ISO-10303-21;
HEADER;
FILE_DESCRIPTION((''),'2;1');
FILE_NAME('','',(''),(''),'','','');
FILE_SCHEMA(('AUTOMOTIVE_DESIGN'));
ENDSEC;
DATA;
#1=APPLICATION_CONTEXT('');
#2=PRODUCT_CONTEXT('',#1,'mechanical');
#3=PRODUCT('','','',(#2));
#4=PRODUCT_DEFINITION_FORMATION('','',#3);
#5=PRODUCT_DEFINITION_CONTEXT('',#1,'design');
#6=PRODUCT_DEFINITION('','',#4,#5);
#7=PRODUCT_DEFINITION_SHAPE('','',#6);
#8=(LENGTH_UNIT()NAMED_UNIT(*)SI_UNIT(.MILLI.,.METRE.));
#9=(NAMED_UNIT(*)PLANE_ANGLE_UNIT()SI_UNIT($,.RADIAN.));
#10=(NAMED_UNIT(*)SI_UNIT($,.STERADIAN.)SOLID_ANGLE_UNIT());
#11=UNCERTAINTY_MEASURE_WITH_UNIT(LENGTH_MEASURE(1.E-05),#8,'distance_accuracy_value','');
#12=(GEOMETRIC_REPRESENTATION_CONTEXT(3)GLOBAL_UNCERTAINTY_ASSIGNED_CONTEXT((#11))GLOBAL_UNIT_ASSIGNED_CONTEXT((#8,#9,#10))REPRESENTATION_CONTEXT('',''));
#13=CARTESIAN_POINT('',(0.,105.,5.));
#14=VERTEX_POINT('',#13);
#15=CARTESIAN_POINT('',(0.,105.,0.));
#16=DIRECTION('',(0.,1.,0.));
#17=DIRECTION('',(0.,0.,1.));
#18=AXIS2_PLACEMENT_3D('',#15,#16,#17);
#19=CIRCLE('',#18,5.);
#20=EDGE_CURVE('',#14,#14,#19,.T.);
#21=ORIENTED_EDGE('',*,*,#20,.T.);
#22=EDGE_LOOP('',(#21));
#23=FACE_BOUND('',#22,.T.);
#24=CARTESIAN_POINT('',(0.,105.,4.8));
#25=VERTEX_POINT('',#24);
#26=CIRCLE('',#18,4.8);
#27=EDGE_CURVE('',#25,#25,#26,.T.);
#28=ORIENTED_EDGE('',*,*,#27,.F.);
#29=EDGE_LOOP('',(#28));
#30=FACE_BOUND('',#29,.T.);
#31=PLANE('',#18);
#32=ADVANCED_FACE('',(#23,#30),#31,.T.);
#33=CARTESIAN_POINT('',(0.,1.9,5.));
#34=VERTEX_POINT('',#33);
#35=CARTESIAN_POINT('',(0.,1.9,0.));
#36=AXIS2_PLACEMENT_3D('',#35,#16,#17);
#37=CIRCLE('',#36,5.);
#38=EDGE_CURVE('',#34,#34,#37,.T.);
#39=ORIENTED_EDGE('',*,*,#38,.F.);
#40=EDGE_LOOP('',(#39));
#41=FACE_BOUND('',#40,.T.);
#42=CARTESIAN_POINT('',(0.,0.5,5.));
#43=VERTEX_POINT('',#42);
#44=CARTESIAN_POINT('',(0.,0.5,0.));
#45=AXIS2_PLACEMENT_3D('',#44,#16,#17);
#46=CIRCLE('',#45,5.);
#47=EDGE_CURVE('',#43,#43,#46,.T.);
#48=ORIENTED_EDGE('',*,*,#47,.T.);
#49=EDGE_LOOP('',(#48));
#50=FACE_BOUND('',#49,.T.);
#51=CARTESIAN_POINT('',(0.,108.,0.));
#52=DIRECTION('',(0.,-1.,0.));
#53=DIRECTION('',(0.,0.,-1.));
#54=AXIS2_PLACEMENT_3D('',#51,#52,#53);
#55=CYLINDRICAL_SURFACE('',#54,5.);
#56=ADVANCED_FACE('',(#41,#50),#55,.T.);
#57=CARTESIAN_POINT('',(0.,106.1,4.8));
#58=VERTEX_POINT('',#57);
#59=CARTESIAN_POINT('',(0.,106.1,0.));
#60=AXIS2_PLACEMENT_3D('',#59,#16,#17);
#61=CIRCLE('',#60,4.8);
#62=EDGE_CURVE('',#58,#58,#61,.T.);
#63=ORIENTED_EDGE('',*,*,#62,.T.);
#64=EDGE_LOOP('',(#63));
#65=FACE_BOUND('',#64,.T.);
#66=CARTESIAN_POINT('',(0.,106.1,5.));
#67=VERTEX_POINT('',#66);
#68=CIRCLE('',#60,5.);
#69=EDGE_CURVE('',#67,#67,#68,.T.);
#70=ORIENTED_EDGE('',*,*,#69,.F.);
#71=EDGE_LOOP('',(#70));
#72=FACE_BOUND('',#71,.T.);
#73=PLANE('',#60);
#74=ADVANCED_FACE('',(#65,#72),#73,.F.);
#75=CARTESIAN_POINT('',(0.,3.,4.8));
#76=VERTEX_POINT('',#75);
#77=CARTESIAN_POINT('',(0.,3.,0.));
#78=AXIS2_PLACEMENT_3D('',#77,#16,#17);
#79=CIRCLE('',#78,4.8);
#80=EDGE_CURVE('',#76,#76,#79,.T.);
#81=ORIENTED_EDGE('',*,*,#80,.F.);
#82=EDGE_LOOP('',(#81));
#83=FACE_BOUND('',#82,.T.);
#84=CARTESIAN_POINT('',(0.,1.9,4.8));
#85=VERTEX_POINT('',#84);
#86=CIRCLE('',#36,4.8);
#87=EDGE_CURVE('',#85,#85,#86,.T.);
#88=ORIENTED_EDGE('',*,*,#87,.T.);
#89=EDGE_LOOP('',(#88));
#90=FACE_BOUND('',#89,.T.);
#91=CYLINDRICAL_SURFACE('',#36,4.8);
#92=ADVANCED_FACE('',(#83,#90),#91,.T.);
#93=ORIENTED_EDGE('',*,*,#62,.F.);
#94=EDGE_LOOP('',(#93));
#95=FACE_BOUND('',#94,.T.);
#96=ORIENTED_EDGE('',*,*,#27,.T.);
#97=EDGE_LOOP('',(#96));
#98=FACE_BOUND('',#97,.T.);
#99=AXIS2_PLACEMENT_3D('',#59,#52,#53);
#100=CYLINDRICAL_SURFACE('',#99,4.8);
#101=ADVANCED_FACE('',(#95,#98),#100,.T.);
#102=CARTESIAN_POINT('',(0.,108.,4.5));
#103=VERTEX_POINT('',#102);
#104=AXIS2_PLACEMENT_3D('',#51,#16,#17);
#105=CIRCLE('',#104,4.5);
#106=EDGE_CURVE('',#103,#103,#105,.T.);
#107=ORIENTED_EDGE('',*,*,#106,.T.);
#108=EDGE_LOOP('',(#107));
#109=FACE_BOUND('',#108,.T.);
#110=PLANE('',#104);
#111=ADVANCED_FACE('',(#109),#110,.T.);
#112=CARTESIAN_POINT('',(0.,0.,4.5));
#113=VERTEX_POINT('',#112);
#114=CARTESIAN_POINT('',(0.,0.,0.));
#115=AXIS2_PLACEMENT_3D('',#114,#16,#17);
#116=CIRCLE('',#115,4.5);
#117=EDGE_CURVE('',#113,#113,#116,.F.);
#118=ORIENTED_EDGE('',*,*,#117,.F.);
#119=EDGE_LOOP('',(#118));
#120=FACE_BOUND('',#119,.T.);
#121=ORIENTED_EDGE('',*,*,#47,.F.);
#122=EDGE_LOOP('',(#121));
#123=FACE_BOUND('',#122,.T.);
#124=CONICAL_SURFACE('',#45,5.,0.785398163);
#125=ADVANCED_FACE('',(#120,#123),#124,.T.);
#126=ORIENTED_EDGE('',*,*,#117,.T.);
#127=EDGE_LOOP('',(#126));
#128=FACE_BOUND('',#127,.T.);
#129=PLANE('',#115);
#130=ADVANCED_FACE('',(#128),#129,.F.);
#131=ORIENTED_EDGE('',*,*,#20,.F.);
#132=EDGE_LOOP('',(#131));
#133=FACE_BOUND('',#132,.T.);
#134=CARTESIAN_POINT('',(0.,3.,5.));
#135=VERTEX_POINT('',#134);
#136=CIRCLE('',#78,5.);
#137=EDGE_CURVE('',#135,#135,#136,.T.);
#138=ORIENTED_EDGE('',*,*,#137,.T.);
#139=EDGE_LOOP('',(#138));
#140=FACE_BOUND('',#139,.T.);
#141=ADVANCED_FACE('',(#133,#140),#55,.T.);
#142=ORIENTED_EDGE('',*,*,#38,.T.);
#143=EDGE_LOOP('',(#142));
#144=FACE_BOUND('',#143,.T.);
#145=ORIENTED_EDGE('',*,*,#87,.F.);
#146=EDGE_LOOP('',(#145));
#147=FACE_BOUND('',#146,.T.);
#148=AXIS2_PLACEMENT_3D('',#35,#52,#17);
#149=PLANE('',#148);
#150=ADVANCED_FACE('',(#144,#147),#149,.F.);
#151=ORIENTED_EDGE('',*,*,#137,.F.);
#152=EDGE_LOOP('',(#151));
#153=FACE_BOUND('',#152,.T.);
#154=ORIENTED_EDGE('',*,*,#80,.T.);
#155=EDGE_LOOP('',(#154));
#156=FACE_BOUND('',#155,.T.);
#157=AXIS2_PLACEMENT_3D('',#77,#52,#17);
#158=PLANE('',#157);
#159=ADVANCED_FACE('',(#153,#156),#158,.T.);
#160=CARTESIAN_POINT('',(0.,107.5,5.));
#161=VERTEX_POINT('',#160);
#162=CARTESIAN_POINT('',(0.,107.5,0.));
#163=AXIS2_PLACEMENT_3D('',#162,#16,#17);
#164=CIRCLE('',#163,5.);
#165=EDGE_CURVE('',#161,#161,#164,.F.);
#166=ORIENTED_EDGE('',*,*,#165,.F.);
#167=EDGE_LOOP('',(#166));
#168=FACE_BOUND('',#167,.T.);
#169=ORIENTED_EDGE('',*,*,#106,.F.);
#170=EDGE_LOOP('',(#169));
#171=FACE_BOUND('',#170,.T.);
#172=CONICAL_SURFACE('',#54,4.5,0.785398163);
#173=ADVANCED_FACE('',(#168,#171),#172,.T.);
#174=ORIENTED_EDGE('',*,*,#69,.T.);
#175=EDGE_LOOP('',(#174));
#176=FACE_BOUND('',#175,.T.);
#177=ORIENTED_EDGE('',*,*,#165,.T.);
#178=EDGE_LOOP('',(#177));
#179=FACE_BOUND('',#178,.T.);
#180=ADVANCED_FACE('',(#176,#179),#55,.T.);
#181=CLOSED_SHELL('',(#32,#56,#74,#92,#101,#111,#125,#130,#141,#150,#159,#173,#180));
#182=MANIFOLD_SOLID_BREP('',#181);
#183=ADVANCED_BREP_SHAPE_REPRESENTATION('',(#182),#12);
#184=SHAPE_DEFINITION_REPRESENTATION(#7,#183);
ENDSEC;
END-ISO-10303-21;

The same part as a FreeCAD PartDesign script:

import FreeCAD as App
import Part
import Sketcher
from FreeCAD import Vector


def edges_at(feature, points):
    """Names of the edges that pass closest to the given points."""
    edges = feature.Shape.Edges
    near = lambda p: min(range(len(edges)), key=lambda i: edges[i].distToShape(Part.Vertex(*p))[0])
    return sorted({f"Edge{near(p) + 1}" for p in points})

doc = App.newDocument("Part")
body = doc.addObject("PartDesign::Body", "Body")

sketch1 = body.newObject("Sketcher::SketchObject", "Sketch")
sketch1.AttachmentSupport = (doc.getObject("XZ_Plane"), [""])
sketch1.MapMode = "FlatFace"
sketch1.addGeometry(Part.Circle(Vector(0, 0, 0), Vector(0, 0, 1), 5), False)
sketch1.addConstraint(Sketcher.Constraint("Coincident", 0, 3, -1, 1))
sketch1.addConstraint(Sketcher.Constraint("Diameter", 0, 10.0))
pad1 = body.newObject("PartDesign::Pad", "Pad")
pad1.Profile = sketch1
pad1.Length = 108
pad1.Reversed = True
doc.recompute()

chamfer = body.newObject("PartDesign::Chamfer", "Chamfer")
chamfer.Base = (pad1, edges_at(pad1, [(0, 0, -5), (0, 108, -5)]))
chamfer.Size = 0.5

sketch2 = body.newObject("Sketcher::SketchObject", "Sketch001")
sketch2.AttachmentSupport = (doc.getObject("XZ_Plane"), [""])
sketch2.MapMode = "FlatFace"
sketch2.AttachmentOffset = App.Placement(Vector(0, 0, -105), App.Rotation())
sketch2.addGeometry(Part.Circle(Vector(0, 0, 0), Vector(0, 0, 1), 5), False)
sketch2.addGeometry(Part.Circle(Vector(0, 0, 0), Vector(0, 0, 1), 4.8), False)
sketch2.addConstraint(Sketcher.Constraint("Coincident", 0, 3, -1, 1))
sketch2.addConstraint(Sketcher.Constraint("Coincident", 1, 3, -1, 1))
sketch2.addConstraint(Sketcher.Constraint("Diameter", 0, 10.0))
sketch2.addConstraint(Sketcher.Constraint("Diameter", 1, 9.6))
pocket1 = body.newObject("PartDesign::Pocket", "Pocket")
pocket1.Profile = sketch2
pocket1.Length = 1.1
doc.recompute()

datumplane = body.newObject("PartDesign::Plane", "DatumPlane")
datumplane.AttachmentSupport = (doc.getObject("XZ_Plane"), [""])
datumplane.MapMode = "FlatFace"
datumplane.AttachmentOffset = App.Placement(Vector(0, 0, -54), App.Rotation())
mirrored = body.newObject("PartDesign::Mirrored", "Mirrored")
mirrored.Originals = [pocket1]
mirrored.MirrorPlane = (datumplane, [""])
body.Tip = mirrored

doc.recompute()
